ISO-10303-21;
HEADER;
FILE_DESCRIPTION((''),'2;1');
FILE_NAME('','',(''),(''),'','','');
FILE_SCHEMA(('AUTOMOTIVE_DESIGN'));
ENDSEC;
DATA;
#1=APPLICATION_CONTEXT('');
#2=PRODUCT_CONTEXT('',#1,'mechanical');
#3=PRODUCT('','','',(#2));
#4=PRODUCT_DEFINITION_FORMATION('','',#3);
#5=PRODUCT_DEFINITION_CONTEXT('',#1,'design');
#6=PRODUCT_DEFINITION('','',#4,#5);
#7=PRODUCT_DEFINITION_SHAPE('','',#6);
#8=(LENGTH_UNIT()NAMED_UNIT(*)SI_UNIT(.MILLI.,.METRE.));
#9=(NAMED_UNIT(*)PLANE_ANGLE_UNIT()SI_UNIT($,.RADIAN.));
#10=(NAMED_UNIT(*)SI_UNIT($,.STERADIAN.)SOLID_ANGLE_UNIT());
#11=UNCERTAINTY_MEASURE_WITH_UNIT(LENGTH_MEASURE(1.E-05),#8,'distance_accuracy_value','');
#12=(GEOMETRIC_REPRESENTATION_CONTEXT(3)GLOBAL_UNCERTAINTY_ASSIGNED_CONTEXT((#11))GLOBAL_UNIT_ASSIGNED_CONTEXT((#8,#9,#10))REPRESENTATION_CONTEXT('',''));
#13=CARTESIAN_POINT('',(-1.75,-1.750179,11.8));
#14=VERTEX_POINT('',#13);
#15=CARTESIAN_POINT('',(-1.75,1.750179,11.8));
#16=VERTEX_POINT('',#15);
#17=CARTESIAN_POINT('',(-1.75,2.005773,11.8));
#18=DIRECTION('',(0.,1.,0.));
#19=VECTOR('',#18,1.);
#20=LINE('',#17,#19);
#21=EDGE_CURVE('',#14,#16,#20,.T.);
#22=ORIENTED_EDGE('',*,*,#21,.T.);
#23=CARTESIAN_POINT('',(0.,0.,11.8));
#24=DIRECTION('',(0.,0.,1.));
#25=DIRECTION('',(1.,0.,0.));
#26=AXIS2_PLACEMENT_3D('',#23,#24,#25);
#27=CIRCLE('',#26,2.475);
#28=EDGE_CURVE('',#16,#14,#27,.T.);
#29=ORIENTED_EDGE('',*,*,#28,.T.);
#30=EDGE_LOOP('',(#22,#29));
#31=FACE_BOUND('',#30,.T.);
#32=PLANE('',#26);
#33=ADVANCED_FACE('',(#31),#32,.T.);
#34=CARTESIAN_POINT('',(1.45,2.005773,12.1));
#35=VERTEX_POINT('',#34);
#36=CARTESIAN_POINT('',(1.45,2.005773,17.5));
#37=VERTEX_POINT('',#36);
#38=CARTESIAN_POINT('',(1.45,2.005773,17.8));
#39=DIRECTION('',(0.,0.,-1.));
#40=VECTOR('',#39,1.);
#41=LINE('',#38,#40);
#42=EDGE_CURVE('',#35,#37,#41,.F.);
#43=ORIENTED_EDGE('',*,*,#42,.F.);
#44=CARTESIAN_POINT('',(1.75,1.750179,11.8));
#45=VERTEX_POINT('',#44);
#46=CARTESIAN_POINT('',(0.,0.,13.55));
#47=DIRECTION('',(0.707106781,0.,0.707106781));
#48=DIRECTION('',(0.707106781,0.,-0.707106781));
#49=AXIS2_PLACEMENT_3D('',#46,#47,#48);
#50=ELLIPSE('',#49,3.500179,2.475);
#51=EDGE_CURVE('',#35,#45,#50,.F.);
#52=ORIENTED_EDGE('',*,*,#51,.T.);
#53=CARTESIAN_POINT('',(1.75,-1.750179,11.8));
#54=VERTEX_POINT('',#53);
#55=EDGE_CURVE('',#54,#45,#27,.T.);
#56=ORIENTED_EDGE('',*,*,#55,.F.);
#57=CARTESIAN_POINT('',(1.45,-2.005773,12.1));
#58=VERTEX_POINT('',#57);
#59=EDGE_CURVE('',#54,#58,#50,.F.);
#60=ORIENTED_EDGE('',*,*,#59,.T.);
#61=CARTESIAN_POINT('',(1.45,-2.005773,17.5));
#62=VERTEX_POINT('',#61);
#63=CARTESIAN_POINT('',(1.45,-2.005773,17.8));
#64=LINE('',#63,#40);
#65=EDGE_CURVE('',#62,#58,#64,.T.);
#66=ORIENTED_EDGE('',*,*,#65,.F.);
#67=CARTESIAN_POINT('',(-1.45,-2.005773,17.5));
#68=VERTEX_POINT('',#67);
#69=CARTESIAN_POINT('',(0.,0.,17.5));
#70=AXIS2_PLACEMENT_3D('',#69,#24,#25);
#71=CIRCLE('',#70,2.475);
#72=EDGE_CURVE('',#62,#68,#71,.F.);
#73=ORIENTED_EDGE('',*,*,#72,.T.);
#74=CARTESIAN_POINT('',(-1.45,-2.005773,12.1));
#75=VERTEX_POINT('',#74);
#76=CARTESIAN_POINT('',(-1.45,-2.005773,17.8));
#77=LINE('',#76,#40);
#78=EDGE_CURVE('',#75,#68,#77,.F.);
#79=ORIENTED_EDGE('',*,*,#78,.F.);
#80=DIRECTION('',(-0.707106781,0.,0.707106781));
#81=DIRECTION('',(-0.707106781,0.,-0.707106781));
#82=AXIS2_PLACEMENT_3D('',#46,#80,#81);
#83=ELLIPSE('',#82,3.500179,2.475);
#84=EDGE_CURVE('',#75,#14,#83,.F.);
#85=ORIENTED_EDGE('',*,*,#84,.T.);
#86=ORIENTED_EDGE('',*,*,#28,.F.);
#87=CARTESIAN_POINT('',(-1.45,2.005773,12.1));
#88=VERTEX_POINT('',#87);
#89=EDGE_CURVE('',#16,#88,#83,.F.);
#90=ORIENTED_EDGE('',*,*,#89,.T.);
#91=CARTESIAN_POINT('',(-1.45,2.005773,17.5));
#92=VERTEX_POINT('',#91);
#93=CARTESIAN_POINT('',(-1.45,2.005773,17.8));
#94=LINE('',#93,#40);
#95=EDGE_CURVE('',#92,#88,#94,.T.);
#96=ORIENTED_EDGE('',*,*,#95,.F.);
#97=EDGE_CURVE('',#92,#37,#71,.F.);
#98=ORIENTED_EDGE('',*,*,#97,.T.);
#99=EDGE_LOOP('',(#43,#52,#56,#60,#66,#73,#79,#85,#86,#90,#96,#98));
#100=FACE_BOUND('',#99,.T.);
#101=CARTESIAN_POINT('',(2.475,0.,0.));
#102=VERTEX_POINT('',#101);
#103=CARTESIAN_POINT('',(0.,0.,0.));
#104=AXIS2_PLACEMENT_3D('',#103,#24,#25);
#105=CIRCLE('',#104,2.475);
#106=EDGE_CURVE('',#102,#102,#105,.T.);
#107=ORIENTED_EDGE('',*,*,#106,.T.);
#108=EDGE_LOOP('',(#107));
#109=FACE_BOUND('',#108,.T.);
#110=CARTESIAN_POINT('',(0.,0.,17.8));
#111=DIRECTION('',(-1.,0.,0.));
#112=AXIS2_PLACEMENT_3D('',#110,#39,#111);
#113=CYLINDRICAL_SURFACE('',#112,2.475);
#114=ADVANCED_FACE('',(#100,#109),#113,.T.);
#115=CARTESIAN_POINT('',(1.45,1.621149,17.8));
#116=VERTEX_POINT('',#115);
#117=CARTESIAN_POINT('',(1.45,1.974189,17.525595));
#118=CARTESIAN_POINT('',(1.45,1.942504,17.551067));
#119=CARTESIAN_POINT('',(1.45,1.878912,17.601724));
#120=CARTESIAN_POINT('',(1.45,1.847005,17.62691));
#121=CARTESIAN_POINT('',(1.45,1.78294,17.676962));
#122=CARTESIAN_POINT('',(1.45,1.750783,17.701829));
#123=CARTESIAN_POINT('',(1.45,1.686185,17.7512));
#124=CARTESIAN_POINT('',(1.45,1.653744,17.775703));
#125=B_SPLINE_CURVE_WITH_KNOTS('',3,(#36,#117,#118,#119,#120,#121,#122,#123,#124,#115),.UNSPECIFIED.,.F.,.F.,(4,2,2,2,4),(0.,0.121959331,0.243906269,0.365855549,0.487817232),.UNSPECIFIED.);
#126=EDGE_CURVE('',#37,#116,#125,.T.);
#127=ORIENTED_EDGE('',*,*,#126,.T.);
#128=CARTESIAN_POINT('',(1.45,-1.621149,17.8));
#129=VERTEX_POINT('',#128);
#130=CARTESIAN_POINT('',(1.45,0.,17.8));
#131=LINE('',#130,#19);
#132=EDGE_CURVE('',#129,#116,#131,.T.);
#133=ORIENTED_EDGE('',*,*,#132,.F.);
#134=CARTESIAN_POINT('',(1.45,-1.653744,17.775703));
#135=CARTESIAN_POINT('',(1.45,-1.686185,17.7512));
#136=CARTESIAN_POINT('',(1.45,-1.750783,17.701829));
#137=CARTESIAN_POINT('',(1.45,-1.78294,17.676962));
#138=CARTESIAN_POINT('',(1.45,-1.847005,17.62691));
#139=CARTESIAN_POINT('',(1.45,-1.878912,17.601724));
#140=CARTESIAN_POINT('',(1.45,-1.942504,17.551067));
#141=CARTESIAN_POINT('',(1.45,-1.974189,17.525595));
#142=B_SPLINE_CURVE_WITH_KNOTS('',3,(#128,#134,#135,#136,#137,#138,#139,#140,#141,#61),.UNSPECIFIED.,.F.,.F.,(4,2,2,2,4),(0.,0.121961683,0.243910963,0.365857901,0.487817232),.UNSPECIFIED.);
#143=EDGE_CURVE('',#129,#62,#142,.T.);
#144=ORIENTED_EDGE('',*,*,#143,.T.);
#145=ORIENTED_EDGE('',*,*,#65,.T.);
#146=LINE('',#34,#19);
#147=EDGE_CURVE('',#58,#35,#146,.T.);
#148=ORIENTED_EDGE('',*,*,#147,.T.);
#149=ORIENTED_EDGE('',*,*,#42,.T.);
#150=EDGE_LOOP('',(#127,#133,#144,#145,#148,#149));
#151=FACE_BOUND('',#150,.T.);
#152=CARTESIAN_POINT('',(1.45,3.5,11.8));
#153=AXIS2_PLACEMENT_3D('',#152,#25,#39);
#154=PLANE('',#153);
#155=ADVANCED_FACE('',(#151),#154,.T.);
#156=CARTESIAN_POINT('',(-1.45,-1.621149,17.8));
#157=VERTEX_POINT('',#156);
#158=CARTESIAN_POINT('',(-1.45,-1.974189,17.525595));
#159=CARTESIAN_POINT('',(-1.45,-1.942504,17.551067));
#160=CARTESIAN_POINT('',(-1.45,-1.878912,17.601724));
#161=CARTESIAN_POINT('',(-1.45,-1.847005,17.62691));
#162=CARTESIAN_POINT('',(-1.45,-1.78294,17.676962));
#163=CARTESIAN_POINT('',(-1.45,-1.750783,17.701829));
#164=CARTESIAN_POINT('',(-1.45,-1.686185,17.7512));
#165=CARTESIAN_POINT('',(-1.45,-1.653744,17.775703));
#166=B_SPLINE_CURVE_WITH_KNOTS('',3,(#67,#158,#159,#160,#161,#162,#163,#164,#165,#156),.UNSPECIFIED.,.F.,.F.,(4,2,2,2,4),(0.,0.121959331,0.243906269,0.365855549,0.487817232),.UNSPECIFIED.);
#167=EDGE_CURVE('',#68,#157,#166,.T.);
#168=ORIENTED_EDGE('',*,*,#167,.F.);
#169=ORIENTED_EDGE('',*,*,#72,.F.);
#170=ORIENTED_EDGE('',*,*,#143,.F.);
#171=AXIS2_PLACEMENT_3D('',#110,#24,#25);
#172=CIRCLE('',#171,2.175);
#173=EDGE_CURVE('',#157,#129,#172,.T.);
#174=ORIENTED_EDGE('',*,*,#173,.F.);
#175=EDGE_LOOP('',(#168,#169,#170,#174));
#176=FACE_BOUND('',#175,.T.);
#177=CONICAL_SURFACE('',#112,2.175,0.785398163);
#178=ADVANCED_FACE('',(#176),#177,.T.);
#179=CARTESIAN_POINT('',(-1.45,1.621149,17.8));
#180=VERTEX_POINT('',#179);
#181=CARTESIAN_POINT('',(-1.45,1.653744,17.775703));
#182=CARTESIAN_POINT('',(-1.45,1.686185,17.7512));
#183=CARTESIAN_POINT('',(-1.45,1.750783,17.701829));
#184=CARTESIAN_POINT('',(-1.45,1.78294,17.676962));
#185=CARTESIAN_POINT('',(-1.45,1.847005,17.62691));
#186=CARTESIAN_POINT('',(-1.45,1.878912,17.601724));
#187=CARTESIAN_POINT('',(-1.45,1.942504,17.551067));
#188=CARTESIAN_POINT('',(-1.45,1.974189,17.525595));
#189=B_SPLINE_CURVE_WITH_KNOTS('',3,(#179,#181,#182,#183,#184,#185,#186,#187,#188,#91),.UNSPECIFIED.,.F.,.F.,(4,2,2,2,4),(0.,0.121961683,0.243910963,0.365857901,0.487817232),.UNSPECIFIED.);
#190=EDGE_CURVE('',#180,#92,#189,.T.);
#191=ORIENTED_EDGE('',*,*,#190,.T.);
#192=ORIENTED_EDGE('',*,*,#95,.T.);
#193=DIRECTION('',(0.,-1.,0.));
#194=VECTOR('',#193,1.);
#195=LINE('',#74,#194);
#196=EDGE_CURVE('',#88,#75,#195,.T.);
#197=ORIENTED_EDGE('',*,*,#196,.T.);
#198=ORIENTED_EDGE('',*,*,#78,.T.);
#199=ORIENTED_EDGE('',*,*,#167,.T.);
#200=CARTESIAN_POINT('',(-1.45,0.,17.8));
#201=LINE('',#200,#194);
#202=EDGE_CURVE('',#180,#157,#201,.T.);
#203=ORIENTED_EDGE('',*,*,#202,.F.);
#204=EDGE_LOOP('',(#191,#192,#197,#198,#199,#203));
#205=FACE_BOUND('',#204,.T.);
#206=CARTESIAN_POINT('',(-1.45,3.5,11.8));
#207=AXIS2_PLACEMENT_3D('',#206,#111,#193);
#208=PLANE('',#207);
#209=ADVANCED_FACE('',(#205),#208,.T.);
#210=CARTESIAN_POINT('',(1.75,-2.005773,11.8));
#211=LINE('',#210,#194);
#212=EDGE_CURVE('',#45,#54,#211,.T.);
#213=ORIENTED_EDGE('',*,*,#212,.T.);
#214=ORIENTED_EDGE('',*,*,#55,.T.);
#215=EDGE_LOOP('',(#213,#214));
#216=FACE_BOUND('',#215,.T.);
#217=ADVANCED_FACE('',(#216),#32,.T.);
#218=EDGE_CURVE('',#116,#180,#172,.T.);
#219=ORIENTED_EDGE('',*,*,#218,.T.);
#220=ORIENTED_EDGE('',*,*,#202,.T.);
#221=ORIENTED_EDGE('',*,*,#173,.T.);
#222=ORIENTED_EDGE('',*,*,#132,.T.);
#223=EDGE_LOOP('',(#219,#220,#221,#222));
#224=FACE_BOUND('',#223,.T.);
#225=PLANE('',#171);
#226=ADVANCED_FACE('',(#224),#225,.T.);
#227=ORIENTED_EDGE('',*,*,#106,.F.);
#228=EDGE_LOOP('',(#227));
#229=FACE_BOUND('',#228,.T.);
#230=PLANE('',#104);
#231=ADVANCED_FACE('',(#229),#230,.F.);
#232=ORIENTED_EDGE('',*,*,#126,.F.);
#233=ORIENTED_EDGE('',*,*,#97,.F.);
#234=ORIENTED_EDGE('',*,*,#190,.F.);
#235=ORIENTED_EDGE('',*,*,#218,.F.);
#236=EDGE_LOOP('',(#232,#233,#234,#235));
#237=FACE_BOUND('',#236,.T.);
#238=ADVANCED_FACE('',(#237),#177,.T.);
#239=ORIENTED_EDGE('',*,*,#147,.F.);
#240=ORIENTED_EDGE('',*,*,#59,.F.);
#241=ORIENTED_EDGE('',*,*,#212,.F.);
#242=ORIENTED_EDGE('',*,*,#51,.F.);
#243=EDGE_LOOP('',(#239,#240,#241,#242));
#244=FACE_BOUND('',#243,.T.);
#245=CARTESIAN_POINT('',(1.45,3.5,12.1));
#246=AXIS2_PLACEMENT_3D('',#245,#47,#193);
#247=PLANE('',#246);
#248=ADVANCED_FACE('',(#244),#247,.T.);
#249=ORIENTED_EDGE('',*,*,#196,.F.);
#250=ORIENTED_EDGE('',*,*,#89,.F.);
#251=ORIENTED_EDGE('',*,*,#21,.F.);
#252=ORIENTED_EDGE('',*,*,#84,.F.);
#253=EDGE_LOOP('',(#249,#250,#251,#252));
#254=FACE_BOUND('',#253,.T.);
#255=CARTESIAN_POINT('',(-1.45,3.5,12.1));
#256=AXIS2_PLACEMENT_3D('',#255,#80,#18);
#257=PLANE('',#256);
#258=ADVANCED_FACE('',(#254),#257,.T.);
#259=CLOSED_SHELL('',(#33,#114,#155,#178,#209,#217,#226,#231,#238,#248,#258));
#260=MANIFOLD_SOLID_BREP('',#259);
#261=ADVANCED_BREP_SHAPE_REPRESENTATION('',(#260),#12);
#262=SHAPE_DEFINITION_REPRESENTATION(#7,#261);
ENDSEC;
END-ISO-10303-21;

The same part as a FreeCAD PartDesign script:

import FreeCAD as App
import Part
import Sketcher


def edges_at(feature, points):
    """Names of the edges that pass closest to the given points."""
    edges = feature.Shape.Edges
    near = lambda p: min(range(len(edges)), key=lambda i: edges[i].distToShape(Part.Vertex(*p))[0])
    return sorted({f"Edge{near(p) + 1}" for p in points})


def add_polygon(sketch, points):
    """Adds a closed chain of lines whose ends are joined by coincident constraints."""
    first, n = sketch.GeometryCount, len(points)
    for a, b in zip(points, points[1:] + points[:1]):
        sketch.addGeometry(Part.LineSegment(App.Vector(*a, 0), App.Vector(*b, 0)), False)
    for i in range(n):
        sketch.addConstraint(Sketcher.Constraint("Coincident", first + i, 2, first + (i + 1) % n, 1))

doc = App.newDocument("Part")
params = doc.addObject("Spreadsheet::Sheet", "Params")
for row, (alias, value) in enumerate([
    ("sketch1_diameter", "4.95 mm"),
    ("pad1_length", "17.8 mm"),
    ("sketch2_height", "7 mm"),
    ("sketch2_width", "2.9 mm"),
    ("pocket1_length", "6 mm"),
    ("chamfer_size", "0.3 mm"),
    ("chamfer2_size", "0.3 mm"),
], start=1):
    params.set(f"A{row}", alias)
    params.set(f"B{row}", "=" + value)
    params.setAlias(f"B{row}", alias)

body = doc.addObject("PartDesign::Body", "Body")

# Sketch on XY plane
sketch1 = doc.addObject("Sketcher::SketchObject", "Sketch")
body.addObject(sketch1)
sketch1.AttachmentSupport = (doc.XY_Plane, [""])
sketch1.MapMode = "FlatFace"
sketch1.addGeometry(Part.Circle(App.Vector(0, 0, 0), App.Vector(0, 0, 1), 2.475), False)
sketch1.addConstraint(Sketcher.Constraint("Coincident", 0, 3, -1, 1))
sketch1.addConstraint(Sketcher.Constraint("Diameter", 0, 4.95))
sketch1.setExpression("Constraints[1]", "Params.sketch1_diameter")
pad1 = doc.addObject("PartDesign::Pad", "Pad")
body.addObject(pad1)
pad1.Profile = sketch1
pad1.setExpression("Length", "Params.pad1_length")

# Sketch on XY plane
sketch2 = doc.addObject("Sketcher::SketchObject", "Sketch001")
body.addObject(sketch2)
sketch2.AttachmentSupport = (doc.XY_Plane, [""])
sketch2.MapMode = "FlatFace"
sketch2.AttachmentOffset = App.Placement(App.Vector(0, 0, 17.8), App.Rotation())
add_polygon(sketch2, [(-5.388, 5.388), (-5.388, -5.388), (5.388, -5.388), (5.388, 5.388)])  # lines 0-3
add_polygon(sketch2, [(1.45, -3.5), (-1.45, -3.5), (-1.45, 3.5), (1.45, 3.5)])  # lines 4-7
sketch2.addConstraint(Sketcher.Constraint("Vertical", 0))
sketch2.addConstraint(Sketcher.Constraint("Horizontal", 1))
sketch2.addConstraint(Sketcher.Constraint("Vertical", 2))
sketch2.addConstraint(Sketcher.Constraint("Horizontal", 3))
sketch2.addConstraint(Sketcher.Constraint("Horizontal", 4))
sketch2.addConstraint(Sketcher.Constraint("Vertical", 5))
sketch2.addConstraint(Sketcher.Constraint("Horizontal", 6))
sketch2.addConstraint(Sketcher.Constraint("Vertical", 7))
sketch2.addConstraint(Sketcher.Constraint("Symmetric", 0, 2, 2, 2, -1, 1))
sketch2.addConstraint(Sketcher.Constraint("Symmetric", 4, 2, 6, 2, -1, 1))
sketch2.addConstraint(Sketcher.Constraint("Equal", 3, 0))
sketch2.addConstraint(Sketcher.Constraint("DistanceY", 5, 1, 5, 2, 7.0))
sketch2.addConstraint(Sketcher.Constraint("DistanceX", 4, 2, 4, 1, 2.9))
sketch2.addConstraint(Sketcher.Constraint("DistanceX", 1, 1, 1, 2, 10.776))
sketch2.setExpression("Constraints[19]", "Params.sketch2_height")
sketch2.setExpression("Constraints[20]", "Params.sketch2_width")
pocket1 = doc.addObject("PartDesign::Pocket", "Pocket")
body.addObject(pocket1)
pocket1.Profile = sketch2
pocket1.setExpression("Length", "Params.pocket1_length")
doc.recompute()

chamfer = doc.addObject("PartDesign::Chamfer", "Chamfer")
body.addObject(chamfer)
chamfer.Base = (pocket1, edges_at(pocket1, [(0, 2.475, 17.8), (0, -2.475, 17.8)]))
chamfer.setExpression("Size", "Params.chamfer_size")
doc.recompute()

chamfer2 = doc.addObject("PartDesign::Chamfer", "Chamfer001")
body.addObject(chamfer2)
chamfer2.Base = (chamfer, edges_at(chamfer, [(-1.45, 0, 11.8), (1.45, 0, 11.8)]))
chamfer2.setExpression("Size", "Params.chamfer2_size")

doc.recompute()
